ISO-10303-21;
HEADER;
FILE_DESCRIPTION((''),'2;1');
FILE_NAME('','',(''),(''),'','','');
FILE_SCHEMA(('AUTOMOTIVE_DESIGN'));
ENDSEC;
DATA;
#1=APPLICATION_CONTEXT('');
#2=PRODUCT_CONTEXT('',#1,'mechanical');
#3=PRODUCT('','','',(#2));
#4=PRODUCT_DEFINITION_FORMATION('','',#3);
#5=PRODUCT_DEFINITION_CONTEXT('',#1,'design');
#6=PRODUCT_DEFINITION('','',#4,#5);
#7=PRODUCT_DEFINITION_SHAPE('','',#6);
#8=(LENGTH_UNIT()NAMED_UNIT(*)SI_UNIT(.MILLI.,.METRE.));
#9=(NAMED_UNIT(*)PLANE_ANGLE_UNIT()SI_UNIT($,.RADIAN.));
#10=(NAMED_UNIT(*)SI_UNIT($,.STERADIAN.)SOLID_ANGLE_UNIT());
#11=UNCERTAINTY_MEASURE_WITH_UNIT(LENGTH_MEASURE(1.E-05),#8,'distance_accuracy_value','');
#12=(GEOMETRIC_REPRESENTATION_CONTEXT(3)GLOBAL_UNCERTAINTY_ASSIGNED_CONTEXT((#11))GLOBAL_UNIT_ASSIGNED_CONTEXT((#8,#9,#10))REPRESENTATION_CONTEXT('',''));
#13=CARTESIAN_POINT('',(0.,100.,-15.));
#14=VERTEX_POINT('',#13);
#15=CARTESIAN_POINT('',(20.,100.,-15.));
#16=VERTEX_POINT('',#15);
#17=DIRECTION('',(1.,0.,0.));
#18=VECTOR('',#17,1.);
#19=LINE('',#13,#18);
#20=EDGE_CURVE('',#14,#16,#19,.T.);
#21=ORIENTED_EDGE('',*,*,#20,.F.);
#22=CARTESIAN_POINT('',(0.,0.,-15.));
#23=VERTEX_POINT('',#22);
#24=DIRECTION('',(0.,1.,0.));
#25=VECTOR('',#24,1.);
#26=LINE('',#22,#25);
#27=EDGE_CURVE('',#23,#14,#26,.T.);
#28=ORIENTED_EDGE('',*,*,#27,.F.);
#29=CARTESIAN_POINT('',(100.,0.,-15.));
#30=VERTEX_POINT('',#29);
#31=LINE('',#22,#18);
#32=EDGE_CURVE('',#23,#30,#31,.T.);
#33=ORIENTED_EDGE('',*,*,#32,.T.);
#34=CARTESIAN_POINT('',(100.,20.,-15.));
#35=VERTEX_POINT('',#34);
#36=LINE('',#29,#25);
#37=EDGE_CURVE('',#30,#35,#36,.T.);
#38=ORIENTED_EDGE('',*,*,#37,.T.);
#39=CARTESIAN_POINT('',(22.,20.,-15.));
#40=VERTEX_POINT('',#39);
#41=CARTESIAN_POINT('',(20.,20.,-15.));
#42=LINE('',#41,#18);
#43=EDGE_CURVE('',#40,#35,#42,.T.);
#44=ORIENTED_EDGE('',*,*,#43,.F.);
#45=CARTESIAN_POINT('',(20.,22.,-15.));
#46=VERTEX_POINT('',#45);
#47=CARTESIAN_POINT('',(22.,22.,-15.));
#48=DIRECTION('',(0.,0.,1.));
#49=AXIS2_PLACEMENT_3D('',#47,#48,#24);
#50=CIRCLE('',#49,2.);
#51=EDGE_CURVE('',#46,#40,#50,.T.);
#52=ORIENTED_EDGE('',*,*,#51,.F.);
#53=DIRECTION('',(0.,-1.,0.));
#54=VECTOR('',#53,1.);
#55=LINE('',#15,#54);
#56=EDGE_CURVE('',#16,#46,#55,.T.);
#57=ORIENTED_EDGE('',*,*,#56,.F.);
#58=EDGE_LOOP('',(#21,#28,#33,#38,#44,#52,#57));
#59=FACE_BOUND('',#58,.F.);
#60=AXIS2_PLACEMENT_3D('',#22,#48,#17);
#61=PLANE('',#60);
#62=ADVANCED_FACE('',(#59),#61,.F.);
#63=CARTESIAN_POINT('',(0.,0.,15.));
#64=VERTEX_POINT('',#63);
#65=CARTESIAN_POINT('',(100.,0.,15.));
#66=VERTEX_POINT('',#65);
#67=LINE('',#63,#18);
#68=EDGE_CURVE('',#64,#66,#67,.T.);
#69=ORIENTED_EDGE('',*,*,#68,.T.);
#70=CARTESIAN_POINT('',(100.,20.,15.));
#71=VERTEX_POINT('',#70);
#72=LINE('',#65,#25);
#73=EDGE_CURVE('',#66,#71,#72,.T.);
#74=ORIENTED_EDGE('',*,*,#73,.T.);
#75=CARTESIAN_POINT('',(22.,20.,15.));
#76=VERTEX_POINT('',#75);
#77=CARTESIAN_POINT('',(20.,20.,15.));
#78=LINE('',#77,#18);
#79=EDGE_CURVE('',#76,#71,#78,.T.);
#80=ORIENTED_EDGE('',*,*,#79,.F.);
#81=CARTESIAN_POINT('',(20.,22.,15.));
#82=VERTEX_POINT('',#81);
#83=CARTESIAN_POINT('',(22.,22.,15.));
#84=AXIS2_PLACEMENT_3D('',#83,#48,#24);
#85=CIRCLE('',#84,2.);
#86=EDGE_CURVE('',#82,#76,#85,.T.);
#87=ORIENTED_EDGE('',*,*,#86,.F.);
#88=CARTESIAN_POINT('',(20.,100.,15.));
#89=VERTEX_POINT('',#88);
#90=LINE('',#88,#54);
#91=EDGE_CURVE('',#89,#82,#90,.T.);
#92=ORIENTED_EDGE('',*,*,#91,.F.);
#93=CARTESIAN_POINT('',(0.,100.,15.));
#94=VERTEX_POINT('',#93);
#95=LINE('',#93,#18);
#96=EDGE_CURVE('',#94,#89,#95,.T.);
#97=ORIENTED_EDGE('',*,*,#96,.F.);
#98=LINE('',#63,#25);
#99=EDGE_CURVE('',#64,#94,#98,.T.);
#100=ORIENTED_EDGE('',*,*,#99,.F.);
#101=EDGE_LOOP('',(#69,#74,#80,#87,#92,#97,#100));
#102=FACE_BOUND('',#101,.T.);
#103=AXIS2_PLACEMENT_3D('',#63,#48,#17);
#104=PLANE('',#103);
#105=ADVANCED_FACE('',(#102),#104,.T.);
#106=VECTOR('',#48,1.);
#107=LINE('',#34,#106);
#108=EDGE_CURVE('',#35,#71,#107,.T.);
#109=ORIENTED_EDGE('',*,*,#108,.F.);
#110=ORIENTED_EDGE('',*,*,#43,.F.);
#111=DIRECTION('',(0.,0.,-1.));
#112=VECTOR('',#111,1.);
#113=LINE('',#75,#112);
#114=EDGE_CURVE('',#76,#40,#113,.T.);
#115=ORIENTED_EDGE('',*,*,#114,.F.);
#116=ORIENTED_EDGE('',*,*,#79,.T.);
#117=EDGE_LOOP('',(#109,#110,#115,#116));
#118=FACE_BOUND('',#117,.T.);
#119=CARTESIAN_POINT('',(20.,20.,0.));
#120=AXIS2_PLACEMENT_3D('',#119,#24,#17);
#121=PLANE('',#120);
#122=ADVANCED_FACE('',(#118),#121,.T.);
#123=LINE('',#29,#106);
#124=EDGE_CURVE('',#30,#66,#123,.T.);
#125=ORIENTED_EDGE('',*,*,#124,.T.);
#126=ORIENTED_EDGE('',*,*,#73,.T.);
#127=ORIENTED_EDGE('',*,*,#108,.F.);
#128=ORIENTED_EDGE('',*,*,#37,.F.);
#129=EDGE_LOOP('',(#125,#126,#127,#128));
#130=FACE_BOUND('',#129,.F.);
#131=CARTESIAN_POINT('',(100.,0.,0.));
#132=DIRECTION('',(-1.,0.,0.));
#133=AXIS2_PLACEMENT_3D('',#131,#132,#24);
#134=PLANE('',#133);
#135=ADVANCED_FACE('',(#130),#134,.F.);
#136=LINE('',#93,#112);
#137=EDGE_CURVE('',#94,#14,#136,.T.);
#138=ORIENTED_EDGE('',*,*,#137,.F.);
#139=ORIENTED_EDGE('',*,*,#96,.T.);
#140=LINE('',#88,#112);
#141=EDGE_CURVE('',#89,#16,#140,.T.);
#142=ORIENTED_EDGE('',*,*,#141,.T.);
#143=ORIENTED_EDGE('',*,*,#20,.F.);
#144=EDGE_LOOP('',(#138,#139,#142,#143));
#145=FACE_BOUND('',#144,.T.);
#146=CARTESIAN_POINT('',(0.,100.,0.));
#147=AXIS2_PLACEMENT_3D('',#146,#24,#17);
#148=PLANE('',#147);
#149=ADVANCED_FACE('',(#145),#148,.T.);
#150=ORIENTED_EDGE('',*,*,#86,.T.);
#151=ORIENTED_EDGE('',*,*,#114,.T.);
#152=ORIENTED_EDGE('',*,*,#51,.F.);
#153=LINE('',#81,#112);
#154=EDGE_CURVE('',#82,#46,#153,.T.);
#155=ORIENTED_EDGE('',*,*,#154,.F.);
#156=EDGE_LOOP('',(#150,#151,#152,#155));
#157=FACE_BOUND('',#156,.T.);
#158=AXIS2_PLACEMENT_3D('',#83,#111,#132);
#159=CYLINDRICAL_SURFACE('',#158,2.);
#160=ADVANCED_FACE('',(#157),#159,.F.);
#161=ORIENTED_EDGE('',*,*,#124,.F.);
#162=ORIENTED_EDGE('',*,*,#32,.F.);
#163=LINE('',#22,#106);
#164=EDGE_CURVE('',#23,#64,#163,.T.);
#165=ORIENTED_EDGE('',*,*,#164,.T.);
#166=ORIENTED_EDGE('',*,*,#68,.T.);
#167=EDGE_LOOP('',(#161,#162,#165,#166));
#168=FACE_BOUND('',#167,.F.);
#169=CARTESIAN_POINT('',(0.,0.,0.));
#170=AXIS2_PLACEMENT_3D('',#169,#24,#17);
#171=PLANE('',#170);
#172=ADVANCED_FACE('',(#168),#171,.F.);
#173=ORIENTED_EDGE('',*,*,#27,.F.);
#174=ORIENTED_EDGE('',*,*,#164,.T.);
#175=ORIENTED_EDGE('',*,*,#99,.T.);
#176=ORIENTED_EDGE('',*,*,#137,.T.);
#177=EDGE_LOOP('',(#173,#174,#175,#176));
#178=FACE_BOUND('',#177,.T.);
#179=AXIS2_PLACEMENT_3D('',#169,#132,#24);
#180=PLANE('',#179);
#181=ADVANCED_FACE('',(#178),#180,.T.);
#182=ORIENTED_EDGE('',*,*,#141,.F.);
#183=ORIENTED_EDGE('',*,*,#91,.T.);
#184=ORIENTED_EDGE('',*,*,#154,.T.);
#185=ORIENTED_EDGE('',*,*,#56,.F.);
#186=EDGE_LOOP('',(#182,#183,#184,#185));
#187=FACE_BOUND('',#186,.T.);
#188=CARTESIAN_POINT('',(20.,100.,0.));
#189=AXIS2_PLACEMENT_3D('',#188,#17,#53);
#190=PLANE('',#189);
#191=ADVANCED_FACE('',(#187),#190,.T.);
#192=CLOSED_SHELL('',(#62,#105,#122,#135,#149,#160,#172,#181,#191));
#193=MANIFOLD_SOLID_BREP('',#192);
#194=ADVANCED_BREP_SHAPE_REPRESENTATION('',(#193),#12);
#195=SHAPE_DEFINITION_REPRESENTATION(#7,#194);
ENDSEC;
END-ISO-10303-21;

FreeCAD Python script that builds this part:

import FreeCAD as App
import Part
import Sketcher

V = App.Vector
Q = App.Units.Quantity


def edges_at(feature, points):
    """Names of the edges that pass closest to the given points."""
    edges = feature.Shape.Edges
    near = lambda p: min(range(len(edges)), key=lambda i: edges[i].distToShape(Part.Vertex(*p))[0])
    return sorted({f"Edge{near(p) + 1}" for p in points})


def add_polygon(sketch, points):
    """Adds a closed chain of lines whose ends are joined by coincident constraints."""
    first, n = sketch.GeometryCount, len(points)
    for a, b in zip(points, points[1:] + points[:1]):
        sketch.addGeometry(Part.LineSegment(App.Vector(*a, 0), App.Vector(*b, 0)), False)
    for i in range(n):
        sketch.addConstraint(Sketcher.Constraint("Coincident", first + i, 2, first + (i + 1) % n, 1))

doc = App.newDocument("Part")
body = doc.addObject("PartDesign::Body", "Body")

# Sketch on XY plane
sketch1 = doc.addObject("Sketcher::SketchObject", "Sketch")
body.addObject(sketch1)
sketch1.AttachmentSupport = (doc.XY_Plane, [""])
sketch1.MapMode = "FlatFace"
add_polygon(sketch1, [(0, 100), (0, 0), (100, 0), (100, 20), (20, 20), (20, 100)])  # lines 0-5
sketch1.addConstraint([
    Sketcher.Constraint("Vertical", 0),
    Sketcher.Constraint("Horizontal", 1),
    Sketcher.Constraint("Vertical", 2),
    Sketcher.Constraint("Horizontal", 3),
    Sketcher.Constraint("Vertical", 4),
    Sketcher.Constraint("Horizontal", 5),
    Sketcher.Constraint("Coincident", 0, 2, -1, 1),
    Sketcher.Constraint("Equal", 1, 0),
    Sketcher.Constraint("Equal", 5, 2),
    Sketcher.Constraint("DistanceX", 1, 1, 1, 2, Q("100 mm")),
    Sketcher.Constraint("DistanceX", 5, 2, 5, 1, Q("20 mm")),
])
pad1 = doc.addObject("PartDesign::Pad", "Pad")
body.addObject(pad1)
pad1.Profile = sketch1
pad1.Length = 30
pad1.Midplane = True
doc.recompute()

fillet = doc.addObject("PartDesign::Fillet", "Fillet")
body.addObject(fillet)
fillet.Base = (pad1, edges_at(pad1, [(20, 20, 0)]))
fillet.Radius = 2

doc.recompute()
